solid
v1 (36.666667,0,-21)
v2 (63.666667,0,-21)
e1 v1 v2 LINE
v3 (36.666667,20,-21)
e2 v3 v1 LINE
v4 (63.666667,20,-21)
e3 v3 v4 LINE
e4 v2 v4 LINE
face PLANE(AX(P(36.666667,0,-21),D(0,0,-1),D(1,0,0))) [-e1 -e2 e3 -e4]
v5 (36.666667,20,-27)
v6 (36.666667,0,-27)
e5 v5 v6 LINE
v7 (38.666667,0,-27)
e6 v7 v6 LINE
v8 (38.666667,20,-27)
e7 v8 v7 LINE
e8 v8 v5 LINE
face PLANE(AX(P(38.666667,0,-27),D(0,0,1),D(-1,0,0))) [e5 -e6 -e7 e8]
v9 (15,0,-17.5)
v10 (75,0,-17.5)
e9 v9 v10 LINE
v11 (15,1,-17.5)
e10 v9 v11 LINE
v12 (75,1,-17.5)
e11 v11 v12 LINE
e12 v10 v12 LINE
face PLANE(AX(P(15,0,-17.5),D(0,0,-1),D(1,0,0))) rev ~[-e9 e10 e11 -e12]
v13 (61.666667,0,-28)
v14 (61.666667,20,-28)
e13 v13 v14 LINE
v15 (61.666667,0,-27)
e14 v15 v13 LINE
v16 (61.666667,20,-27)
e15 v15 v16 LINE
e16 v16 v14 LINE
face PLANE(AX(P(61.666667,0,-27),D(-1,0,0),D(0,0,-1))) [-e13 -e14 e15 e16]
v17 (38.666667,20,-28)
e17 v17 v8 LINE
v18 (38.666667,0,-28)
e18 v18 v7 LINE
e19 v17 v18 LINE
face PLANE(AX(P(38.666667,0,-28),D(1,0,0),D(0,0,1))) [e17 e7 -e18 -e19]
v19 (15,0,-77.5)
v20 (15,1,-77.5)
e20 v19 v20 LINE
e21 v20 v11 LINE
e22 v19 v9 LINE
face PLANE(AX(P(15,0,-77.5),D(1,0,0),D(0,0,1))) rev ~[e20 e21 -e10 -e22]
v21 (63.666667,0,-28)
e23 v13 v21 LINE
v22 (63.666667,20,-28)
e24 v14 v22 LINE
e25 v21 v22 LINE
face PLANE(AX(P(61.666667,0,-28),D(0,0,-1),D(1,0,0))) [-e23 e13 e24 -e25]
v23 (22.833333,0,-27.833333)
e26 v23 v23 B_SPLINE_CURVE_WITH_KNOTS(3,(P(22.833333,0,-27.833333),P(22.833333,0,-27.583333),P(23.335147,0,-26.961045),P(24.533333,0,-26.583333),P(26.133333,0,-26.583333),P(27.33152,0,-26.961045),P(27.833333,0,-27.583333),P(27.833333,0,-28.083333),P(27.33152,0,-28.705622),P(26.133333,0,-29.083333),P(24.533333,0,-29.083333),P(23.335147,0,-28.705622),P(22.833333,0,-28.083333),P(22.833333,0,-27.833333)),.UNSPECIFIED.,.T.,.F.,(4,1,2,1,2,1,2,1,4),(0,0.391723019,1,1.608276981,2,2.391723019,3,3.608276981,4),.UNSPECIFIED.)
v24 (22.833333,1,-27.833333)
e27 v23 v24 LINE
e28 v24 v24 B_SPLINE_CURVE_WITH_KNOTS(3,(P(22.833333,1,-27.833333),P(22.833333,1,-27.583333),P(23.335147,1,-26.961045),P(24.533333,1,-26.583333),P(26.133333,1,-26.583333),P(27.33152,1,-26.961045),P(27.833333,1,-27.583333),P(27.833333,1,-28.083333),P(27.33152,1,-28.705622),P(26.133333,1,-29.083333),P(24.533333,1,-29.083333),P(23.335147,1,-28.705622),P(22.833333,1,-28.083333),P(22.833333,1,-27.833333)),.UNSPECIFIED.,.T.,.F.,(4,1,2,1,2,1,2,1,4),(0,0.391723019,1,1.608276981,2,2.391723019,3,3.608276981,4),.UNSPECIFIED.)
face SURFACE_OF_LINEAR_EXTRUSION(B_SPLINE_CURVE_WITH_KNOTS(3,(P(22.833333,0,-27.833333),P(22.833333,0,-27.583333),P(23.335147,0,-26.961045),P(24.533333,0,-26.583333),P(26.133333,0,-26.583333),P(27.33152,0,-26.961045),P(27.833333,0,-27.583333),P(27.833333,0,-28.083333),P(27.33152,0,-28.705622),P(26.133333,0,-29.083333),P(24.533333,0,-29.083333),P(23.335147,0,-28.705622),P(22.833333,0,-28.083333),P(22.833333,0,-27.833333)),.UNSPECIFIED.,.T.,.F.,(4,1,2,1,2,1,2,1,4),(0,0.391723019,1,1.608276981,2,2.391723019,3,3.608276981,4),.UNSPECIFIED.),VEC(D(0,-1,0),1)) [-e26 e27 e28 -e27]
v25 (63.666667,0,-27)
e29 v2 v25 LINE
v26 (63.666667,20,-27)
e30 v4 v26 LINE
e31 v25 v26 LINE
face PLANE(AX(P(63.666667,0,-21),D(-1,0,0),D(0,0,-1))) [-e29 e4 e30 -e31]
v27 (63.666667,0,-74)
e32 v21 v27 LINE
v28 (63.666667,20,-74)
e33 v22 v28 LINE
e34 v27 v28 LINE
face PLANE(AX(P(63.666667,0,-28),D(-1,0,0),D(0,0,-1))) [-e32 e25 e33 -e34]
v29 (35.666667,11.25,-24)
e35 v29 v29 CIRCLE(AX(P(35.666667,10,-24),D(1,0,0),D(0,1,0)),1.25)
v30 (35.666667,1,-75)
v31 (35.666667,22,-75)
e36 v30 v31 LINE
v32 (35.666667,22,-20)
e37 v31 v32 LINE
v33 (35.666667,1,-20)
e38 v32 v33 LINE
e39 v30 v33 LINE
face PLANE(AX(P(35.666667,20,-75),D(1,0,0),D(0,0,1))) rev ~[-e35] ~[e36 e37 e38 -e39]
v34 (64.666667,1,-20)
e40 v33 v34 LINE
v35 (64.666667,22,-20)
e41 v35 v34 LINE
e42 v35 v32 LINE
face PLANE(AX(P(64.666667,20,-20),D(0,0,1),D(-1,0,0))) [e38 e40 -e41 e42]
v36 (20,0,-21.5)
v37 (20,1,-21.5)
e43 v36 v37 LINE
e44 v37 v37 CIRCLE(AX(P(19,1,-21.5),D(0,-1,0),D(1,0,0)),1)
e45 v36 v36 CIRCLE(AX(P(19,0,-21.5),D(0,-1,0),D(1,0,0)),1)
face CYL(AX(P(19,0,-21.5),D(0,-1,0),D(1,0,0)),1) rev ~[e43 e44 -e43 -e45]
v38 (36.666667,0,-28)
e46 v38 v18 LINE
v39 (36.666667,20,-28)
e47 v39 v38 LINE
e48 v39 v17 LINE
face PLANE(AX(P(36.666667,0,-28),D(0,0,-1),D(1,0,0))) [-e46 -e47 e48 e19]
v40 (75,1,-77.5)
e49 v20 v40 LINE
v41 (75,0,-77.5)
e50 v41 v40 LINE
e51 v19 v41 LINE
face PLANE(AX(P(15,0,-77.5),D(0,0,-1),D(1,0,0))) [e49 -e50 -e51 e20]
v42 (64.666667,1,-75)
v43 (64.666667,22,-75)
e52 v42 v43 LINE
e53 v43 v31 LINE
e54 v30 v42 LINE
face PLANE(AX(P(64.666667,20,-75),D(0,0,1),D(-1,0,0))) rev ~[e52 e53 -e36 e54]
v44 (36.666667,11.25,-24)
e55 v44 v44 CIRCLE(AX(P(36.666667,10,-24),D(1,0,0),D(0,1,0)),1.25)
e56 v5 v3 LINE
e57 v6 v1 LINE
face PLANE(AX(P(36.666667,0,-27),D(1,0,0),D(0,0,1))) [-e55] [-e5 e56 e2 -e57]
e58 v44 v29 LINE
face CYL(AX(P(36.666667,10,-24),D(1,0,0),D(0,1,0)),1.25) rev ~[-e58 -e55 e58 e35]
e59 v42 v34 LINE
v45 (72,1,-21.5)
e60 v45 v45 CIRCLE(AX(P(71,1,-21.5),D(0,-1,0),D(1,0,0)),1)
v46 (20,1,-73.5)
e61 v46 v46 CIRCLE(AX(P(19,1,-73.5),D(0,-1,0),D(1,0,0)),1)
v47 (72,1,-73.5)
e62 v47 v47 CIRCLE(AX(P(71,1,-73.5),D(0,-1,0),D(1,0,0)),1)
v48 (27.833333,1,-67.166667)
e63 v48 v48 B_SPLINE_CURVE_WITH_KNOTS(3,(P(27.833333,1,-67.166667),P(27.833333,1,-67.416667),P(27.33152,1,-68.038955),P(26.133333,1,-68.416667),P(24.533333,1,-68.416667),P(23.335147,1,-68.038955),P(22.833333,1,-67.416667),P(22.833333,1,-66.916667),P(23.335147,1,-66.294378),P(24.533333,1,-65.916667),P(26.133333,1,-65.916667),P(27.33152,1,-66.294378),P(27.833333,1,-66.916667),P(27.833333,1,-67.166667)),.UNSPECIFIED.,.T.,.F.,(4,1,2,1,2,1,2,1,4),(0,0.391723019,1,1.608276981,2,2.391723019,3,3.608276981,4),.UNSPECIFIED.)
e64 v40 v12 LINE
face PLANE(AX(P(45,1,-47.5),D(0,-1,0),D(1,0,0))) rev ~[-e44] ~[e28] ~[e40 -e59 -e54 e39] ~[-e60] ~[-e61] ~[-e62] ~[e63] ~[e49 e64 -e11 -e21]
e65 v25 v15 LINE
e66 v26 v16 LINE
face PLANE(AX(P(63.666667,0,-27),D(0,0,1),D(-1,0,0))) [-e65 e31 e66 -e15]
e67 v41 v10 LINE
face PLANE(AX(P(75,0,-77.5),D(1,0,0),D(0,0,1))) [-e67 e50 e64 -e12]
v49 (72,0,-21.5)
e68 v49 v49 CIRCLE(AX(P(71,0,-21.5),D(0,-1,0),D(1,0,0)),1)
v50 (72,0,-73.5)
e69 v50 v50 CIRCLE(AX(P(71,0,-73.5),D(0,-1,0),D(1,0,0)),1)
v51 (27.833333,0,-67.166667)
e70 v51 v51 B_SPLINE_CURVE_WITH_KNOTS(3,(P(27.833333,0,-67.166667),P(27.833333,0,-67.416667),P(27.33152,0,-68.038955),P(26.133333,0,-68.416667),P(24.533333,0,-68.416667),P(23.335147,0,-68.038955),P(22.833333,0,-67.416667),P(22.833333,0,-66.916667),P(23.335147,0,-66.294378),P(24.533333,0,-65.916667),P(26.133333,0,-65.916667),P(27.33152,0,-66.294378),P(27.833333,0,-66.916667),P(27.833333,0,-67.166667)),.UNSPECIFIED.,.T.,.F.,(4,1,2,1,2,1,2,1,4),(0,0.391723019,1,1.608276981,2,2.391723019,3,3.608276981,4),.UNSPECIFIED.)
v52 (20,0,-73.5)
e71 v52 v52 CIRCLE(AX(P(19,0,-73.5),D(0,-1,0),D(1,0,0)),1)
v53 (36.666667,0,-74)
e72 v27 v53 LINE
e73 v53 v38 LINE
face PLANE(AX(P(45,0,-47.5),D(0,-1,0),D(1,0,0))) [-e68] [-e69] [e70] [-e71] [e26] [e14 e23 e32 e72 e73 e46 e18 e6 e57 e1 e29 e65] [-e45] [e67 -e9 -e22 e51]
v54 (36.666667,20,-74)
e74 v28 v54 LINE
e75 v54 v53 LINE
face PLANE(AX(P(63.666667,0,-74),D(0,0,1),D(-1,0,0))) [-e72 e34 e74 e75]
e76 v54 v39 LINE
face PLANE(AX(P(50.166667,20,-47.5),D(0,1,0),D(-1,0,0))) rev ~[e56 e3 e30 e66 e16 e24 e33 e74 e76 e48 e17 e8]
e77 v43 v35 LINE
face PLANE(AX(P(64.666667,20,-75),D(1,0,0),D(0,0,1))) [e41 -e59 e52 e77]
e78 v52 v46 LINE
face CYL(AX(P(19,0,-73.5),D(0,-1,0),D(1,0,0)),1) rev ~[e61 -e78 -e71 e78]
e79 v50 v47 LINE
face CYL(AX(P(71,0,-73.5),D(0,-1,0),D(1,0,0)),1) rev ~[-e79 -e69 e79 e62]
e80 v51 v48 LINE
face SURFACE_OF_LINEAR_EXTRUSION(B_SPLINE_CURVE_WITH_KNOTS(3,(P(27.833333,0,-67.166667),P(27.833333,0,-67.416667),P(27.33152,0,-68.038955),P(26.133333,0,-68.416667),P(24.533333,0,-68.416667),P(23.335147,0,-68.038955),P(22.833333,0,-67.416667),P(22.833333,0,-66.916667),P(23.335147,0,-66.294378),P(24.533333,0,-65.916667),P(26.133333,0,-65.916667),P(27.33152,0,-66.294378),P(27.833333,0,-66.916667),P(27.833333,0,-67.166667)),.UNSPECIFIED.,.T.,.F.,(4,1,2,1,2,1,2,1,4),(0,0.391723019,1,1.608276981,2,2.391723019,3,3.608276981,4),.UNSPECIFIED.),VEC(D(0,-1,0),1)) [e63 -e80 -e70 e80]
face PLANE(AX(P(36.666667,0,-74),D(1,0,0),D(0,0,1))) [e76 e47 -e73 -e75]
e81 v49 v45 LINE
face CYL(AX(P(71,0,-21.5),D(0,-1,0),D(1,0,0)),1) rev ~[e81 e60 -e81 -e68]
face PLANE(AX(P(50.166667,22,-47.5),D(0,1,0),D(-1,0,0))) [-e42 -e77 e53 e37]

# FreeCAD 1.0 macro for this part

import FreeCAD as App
import Part
import Sketcher

V = App.Vector
Q = App.Units.Quantity


def add_polygon(sketch, points):
    """Adds a closed chain of lines whose ends are joined by coincident constraints."""
    first, n = sketch.GeometryCount, len(points)
    for a, b in zip(points, points[1:] + points[:1]):
        sketch.addGeometry(Part.LineSegment(App.Vector(*a, 0), App.Vector(*b, 0)), False)
    for i in range(n):
        sketch.addConstraint(Sketcher.Constraint("Coincident", first + i, 2, first + (i + 1) % n, 1))

doc = App.newDocument("Part")
body = doc.addObject("PartDesign::Body", "Body")

# Sketch on XZ plane
sketch1 = body.newObject("Sketcher::SketchObject", "Sketch")
sketch1.AttachmentSupport = (doc.getObject("XZ_Plane"), [""])
sketch1.MapMode = "FlatFace"
add_polygon(sketch1, [(15, -17.5), (15, -77.5), (75, -77.5), (75, -17.5)])  # lines 0-3
sketch1.addGeometry(Part.Circle(V(19, -73.5, 0), V(0, 0, 1), 1), False)  # 4
sketch1.addGeometry(Part.BSplineCurve([V(27.833333, -67.166667, 0), V(27.833333, -67.416667, 0), V(27.33152, -68.038955, 0), V(26.133333, -68.416667, 0), V(24.533333, -68.416667, 0), V(23.335147, -68.038955, 0), V(22.833333, -67.416667, 0), V(22.833333, -66.916667, 0), V(23.335147, -66.294378, 0), V(24.533333, -65.916667, 0), V(26.133333, -65.916667, 0), V(27.33152, -66.294378, 0), V(27.833333, -66.916667, 0), V(27.833333, -67.166667, 0)], [4, 1, 2, 1, 2, 1, 2, 1, 4], [0, 0.391723019, 1, 1.608276981, 2, 2.391723019, 3, 3.608276981, 4], False, 3, [1, 1, 1, 1, 1, 1, 1, 1, 1, 1, 1, 1, 1, 1], False), False)  # 5
sketch1.addGeometry(Part.Circle(V(71, -73.5, 0), V(0, 0, 1), 1), False)  # 6
sketch1.addGeometry(Part.BSplineCurve([V(22.833333, -27.833333, 0), V(22.833333, -27.583333, 0), V(23.335147, -26.961045, 0), V(24.533333, -26.583333, 0), V(26.133333, -26.583333, 0), V(27.33152, -26.961045, 0), V(27.833333, -27.583333, 0), V(27.833333, -28.083333, 0), V(27.33152, -28.705622, 0), V(26.133333, -29.083333, 0), V(24.533333, -29.083333, 0), V(23.335147, -28.705622, 0), V(22.833333, -28.083333, 0), V(22.833333, -27.833333, 0)], [4, 1, 2, 1, 2, 1, 2, 1, 4], [0, 0.391723019, 1, 1.608276981, 2, 2.391723019, 3, 3.608276981, 4], False, 3, [1, 1, 1, 1, 1, 1, 1, 1, 1, 1, 1, 1, 1, 1], False), False)  # 7
sketch1.addGeometry(Part.Circle(V(19, -21.5, 0), V(0, 0, 1), 1), False)  # 8
add_polygon(sketch1, [(63.666667, -74), (36.666667, -74), (36.666667, -28), (38.666667, -28), (38.666667, -27), (36.666667, -27), (36.666667, -21), (63.666667, -21), (63.666667, -27), (61.666667, -27), (61.666667, -28), (63.666667, -28)])  # lines 9-20
sketch1.addGeometry(Part.Circle(V(71, -21.5, 0), V(0, 0, 1), 1), False)  # 21
sketch1.addConstraint(Sketcher.Constraint("Block", 5))
sketch1.addConstraint(Sketcher.Constraint("Block", 7))
sketch1.addConstraint(Sketcher.Constraint("Vertical", 0))
sketch1.addConstraint(Sketcher.Constraint("Horizontal", 1))
sketch1.addConstraint(Sketcher.Constraint("Vertical", 2))
sketch1.addConstraint(Sketcher.Constraint("Horizontal", 3))
sketch1.addConstraint(Sketcher.Constraint("Horizontal", 9))
sketch1.addConstraint(Sketcher.Constraint("Vertical", 10))
sketch1.addConstraint(Sketcher.Constraint("Horizontal", 11))
sketch1.addConstraint(Sketcher.Constraint("Vertical", 12))
sketch1.addConstraint(Sketcher.Constraint("Horizontal", 13))
sketch1.addConstraint(Sketcher.Constraint("Vertical", 14))
sketch1.addConstraint(Sketcher.Constraint("Horizontal", 15))
sketch1.addConstraint(Sketcher.Constraint("Vertical", 16))
sketch1.addConstraint(Sketcher.Constraint("Horizontal", 17))
sketch1.addConstraint(Sketcher.Constraint("Vertical", 18))
sketch1.addConstraint(Sketcher.Constraint("Horizontal", 19))
sketch1.addConstraint(Sketcher.Constraint("Vertical", 20))
sketch1.addConstraint(Sketcher.Constraint("Equal", 4, 6))
sketch1.addConstraint(Sketcher.Constraint("Equal", 6, 8))
sketch1.addConstraint(Sketcher.Constraint("Equal", 8, 21))
sketch1.addConstraint(Sketcher.Constraint("Horizontal", 4, 3, 6, 3))
sketch1.addConstraint(Sketcher.Constraint("Horizontal", 8, 3, 21, 3))
sketch1.addConstraint(Sketcher.Constraint("Horizontal", 13, 2, 16, 2))
sketch1.addConstraint(Sketcher.Constraint("Horizontal", 11, 2, 18, 2))
sketch1.addConstraint(Sketcher.Constraint("Vertical", 4, 3, 8, 3))
sketch1.addConstraint(Sketcher.Constraint("Vertical", 6, 3, 21, 3))
sketch1.addConstraint(Sketcher.Constraint("Vertical", 10, 2, 13, 2))
sketch1.addConstraint(Sketcher.Constraint("Vertical", 16, 2, 19, 2))
sketch1.addConstraint(Sketcher.Constraint("Equal", 13, 17))
sketch1.addConstraint(Sketcher.Constraint("Equal", 3, 0))
sketch1.addConstraint(Sketcher.Constraint("Diameter", 4, Q("2 mm")))
sketch1.addConstraint(Sketcher.Constraint("DistanceX", 1, 1, 1, 2, Q("60 mm")))
sketch1.addConstraint(Sketcher.Constraint("DistanceX", 9, 2, 9, 1, Q("27 mm")))
sketch1.addConstraint(Sketcher.Constraint("DistanceX", 11, 1, 11, 2, Q("2 mm")))
sketch1.addConstraint(Sketcher.Constraint("DistanceY", 10, 1, 10, 2, Q("46 mm")))
sketch1.addConstraint(Sketcher.Constraint("DistanceY", 12, 1, 12, 2, Q("1 mm")))
sketch1.addConstraint(Sketcher.Constraint("DistanceY", 14, 1, 14, 2, Q("6 mm")))
sketch1.addConstraint(Sketcher.Constraint("DistanceX", -1, 1, 4, 3, Q("19 mm")))
sketch1.addConstraint(Sketcher.Constraint("DistanceX", -1, 1, 6, 3, Q("71 mm")))
sketch1.addConstraint(Sketcher.Constraint("DistanceX", -1, 1, 0, 2, Q("15 mm")))
sketch1.addConstraint(Sketcher.Constraint("DistanceY", 9, 2, -1, 1, Q("74 mm")))
sketch1.addConstraint(Sketcher.Constraint("DistanceY", 4, 3, 8, 3, Q("52 mm")))
sketch1.addConstraint(Sketcher.Constraint("DistanceY", 0, 2, 4, 3, Q("4 mm")))
sketch1.addConstraint(Sketcher.Constraint("DistanceY", 4, 3, -1, 1, Q("73.5 mm")))
sketch1.addConstraint(Sketcher.Constraint("DistanceX", -1, 1, 9, 2, Q("36.666667 mm")))
pad1 = body.newObject("PartDesign::Pad", "Pad")
pad1.Profile = sketch1
pad1.Length = 1
pad1.Reversed = True

# Sketch on XZ plane
sketch2 = body.newObject("Sketcher::SketchObject", "Sketch001")
sketch2.AttachmentSupport = (doc.getObject("XZ_Plane"), [""])
sketch2.MapMode = "FlatFace"
add_polygon(sketch2, [(35.666667, -20), (35.666667, -75), (64.666667, -75), (64.666667, -20)])  # lines 0-3
add_polygon(sketch2, [(63.666667, -74), (36.666667, -74), (36.666667, -28), (38.666667, -28), (38.666667, -27), (36.666667, -27), (36.666667, -21), (63.666667, -21), (63.666667, -27), (61.666667, -27), (61.666667, -28), (63.666667, -28)])  # lines 4-15
sketch2.addConstraint(Sketcher.Constraint("Vertical", 0))
sketch2.addConstraint(Sketcher.Constraint("Horizontal", 1))
sketch2.addConstraint(Sketcher.Constraint("Vertical", 2))
sketch2.addConstraint(Sketcher.Constraint("Horizontal", 3))
sketch2.addConstraint(Sketcher.Constraint("Horizontal", 4))
sketch2.addConstraint(Sketcher.Constraint("Vertical", 5))
sketch2.addConstraint(Sketcher.Constraint("Horizontal", 6))
sketch2.addConstraint(Sketcher.Constraint("Vertical", 7))
sketch2.addConstraint(Sketcher.Constraint("Horizontal", 8))
sketch2.addConstraint(Sketcher.Constraint("Vertical", 9))
sketch2.addConstraint(Sketcher.Constraint("Horizontal", 10))
sketch2.addConstraint(Sketcher.Constraint("Vertical", 11))
sketch2.addConstraint(Sketcher.Constraint("Horizontal", 12))
sketch2.addConstraint(Sketcher.Constraint("Vertical", 13))
sketch2.addConstraint(Sketcher.Constraint("Horizontal", 14))
sketch2.addConstraint(Sketcher.Constraint("Vertical", 15))
sketch2.addConstraint(Sketcher.Constraint("Horizontal", 8, 2, 11, 2))
sketch2.addConstraint(Sketcher.Constraint("Horizontal", 6, 2, 13, 2))
sketch2.addConstraint(Sketcher.Constraint("Vertical", 5, 2, 8, 2))
sketch2.addConstraint(Sketcher.Constraint("Vertical", 11, 2, 14, 2))
sketch2.addConstraint(Sketcher.Constraint("Equal", 8, 12))
sketch2.addConstraint(Sketcher.Constraint("DistanceX", 1, 1, 1, 2, Q("29 mm")))
sketch2.addConstraint(Sketcher.Constraint("DistanceX", 4, 2, 4, 1, Q("27 mm")))
sketch2.addConstraint(Sketcher.Constraint("DistanceX", 6, 1, 6, 2, Q("2 mm")))
sketch2.addConstraint(Sketcher.Constraint("DistanceY", 0, 2, 0, 1, Q("55 mm")))
sketch2.addConstraint(Sketcher.Constraint("DistanceY", 5, 1, 5, 2, Q("46 mm")))
sketch2.addConstraint(Sketcher.Constraint("DistanceY", 7, 1, 7, 2, Q("1 mm")))
sketch2.addConstraint(Sketcher.Constraint("DistanceY", 9, 1, 9, 2, Q("6 mm")))
sketch2.addConstraint(Sketcher.Constraint("DistanceY", 0, 2, -1, 1, Q("75 mm")))
sketch2.addConstraint(Sketcher.Constraint("DistanceY", 4, 2, -1, 1, Q("74 mm")))
sketch2.addConstraint(Sketcher.Constraint("DistanceX", 0, 2, 4, 2, Q("1 mm")))
sketch2.addConstraint(Sketcher.Constraint("DistanceX", -1, 1, 0, 2, Q("35.666667 mm")))
pad2 = body.newObject("PartDesign::Pad", "Pad001")
pad2.Profile = sketch2
pad2.Length = 20
pad2.Reversed = True

# Sketch on XZ plane
sketch3 = body.newObject("Sketcher::SketchObject", "Sketch002")
sketch3.AttachmentSupport = (doc.getObject("XZ_Plane"), [""])
sketch3.MapMode = "FlatFace"
sketch3.AttachmentOffset = App.Placement(V(0, 0, -20), App.Rotation())
add_polygon(sketch3, [(64.666667, -20), (64.666667, -75), (35.666667, -75), (35.666667, -20)])  # lines 0-3
sketch3.addConstraint(Sketcher.Constraint("Vertical", 0))
sketch3.addConstraint(Sketcher.Constraint("Horizontal", 1))
sketch3.addConstraint(Sketcher.Constraint("Vertical", 2))
sketch3.addConstraint(Sketcher.Constraint("Horizontal", 3))
sketch3.addConstraint(Sketcher.Constraint("DistanceX", 1, 2, 1, 1, Q("29 mm")))
sketch3.addConstraint(Sketcher.Constraint("DistanceY", 0, 2, 0, 1, Q("55 mm")))
sketch3.addConstraint(Sketcher.Constraint("DistanceY", 0, 2, -1, 1, Q("75 mm")))
sketch3.addConstraint(Sketcher.Constraint("DistanceX", -1, 1, 0, 2, Q("64.666667 mm")))
pad3 = body.newObject("PartDesign::Pad", "Pad002")
pad3.Profile = sketch3
pad3.Length = 2
pad3.Reversed = True

# Sketch on YZ plane
sketch4 = body.newObject("Sketcher::SketchObject", "Sketch003")
sketch4.AttachmentSupport = (doc.getObject("YZ_Plane"), [""])
sketch4.MapMode = "FlatFace"
sketch4.AttachmentOffset = App.Placement(V(0, 0, 36.666667), App.Rotation())
sketch4.addGeometry(Part.Circle(V(10, -24, 0), V(0, 0, 1), 1.25), False)
sketch4.addConstraint(Sketcher.Constraint("Diameter", 0, Q("2.5 mm")))
sketch4.addConstraint(Sketcher.Constraint("DistanceX", -1, 1, 0, 3, Q("10 mm")))
sketch4.addConstraint(Sketcher.Constraint("DistanceY", 0, 3, -1, 1, Q("24 mm")))
pocket1 = body.newObject("PartDesign::Pocket", "Pocket")
pocket1.Profile = sketch4
pocket1.Type = "ThroughAll"

doc.recompute()
